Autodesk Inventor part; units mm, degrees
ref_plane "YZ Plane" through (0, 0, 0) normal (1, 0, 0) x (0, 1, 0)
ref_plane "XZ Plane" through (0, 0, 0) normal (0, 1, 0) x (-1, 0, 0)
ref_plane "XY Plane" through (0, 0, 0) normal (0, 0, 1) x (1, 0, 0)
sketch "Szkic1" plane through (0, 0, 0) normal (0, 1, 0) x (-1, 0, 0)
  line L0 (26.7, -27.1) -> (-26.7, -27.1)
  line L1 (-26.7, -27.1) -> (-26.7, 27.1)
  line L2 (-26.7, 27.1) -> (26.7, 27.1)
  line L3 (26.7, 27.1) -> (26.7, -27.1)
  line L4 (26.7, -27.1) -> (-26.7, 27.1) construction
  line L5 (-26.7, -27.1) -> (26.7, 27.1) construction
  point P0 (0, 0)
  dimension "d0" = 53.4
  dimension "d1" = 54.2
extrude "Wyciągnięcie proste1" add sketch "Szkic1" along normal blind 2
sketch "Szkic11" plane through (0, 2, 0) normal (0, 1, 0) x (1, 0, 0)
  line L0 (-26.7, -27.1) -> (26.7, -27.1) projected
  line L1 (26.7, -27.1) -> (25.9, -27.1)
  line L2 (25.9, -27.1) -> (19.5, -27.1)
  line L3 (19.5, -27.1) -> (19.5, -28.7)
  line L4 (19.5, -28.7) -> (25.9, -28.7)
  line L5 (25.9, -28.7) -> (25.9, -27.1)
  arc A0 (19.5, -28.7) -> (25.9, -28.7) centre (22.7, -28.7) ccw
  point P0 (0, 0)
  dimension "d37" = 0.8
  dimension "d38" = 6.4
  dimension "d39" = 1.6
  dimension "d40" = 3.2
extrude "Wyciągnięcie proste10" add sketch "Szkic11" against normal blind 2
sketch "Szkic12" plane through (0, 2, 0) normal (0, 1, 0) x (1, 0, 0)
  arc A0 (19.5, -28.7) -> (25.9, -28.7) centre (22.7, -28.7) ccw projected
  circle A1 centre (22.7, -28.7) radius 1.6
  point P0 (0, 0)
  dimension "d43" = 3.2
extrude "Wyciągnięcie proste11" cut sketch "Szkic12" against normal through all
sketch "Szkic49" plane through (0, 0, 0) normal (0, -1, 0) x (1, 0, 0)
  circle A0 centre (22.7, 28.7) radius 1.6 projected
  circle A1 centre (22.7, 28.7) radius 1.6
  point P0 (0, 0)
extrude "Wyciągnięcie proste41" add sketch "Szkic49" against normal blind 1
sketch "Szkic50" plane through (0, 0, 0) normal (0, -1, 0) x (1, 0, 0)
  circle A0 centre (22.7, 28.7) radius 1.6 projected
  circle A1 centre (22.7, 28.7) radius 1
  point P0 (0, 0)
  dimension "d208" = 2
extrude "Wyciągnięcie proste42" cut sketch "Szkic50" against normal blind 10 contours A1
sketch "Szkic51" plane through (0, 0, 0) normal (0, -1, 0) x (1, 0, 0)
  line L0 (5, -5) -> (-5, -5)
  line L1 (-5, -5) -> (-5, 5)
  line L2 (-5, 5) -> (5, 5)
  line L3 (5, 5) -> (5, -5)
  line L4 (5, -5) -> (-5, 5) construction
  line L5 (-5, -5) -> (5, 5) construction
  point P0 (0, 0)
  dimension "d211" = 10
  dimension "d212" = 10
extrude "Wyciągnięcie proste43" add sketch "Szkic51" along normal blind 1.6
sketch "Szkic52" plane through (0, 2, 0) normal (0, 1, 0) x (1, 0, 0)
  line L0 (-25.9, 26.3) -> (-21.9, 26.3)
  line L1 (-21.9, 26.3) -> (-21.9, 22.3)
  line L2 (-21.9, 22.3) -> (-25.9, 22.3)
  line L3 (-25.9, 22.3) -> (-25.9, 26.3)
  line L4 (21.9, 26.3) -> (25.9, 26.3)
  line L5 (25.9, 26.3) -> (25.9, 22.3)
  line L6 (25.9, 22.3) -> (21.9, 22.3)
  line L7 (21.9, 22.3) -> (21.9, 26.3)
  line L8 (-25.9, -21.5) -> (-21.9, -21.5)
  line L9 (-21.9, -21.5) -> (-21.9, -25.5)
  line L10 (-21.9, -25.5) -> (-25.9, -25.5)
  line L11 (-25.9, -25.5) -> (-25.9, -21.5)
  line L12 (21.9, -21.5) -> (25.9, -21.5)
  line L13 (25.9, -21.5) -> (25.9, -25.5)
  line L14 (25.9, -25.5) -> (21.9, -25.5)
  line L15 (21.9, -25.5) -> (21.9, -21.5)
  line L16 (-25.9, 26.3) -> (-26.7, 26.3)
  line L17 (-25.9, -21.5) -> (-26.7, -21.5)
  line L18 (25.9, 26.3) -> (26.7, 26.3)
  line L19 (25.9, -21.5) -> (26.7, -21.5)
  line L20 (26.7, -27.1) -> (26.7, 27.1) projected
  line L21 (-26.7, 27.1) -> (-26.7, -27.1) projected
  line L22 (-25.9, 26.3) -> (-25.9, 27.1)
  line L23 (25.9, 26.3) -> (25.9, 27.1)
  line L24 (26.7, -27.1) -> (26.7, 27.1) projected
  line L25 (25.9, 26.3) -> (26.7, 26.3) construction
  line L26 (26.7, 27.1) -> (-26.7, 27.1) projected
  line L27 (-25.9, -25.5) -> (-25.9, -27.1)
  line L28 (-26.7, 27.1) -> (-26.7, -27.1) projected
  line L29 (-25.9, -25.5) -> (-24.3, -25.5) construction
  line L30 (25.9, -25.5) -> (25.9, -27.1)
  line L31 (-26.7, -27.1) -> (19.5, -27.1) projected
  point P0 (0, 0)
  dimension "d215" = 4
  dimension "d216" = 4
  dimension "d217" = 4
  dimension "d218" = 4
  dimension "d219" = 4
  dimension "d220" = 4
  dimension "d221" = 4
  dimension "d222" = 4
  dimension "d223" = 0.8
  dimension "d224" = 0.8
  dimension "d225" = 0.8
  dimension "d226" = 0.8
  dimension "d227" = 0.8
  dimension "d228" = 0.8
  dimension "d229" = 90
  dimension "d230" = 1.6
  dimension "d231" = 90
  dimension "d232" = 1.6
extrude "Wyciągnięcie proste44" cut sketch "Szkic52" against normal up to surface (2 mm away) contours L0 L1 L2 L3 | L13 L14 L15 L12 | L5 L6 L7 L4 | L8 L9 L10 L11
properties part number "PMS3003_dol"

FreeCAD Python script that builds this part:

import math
import FreeCAD as App
import Part
import Sketcher

doc = App.newDocument("Part")
body = doc.addObject("PartDesign::Body", "Body")

# Sketch on XZ plane
sketch1 = doc.addObject("Sketcher::SketchObject", "Sketch")
body.addObject(sketch1)
sketch1.AttachmentSupport = (doc.XZ_Plane, [""])
sketch1.MapMode = "FlatFace"
sketch1.addGeometry([
    Part.LineSegment(App.Vector(26.7, -27.1, 0), App.Vector(-26.7, -27.1, 0)),
    Part.LineSegment(App.Vector(-26.7, -27.1, 0), App.Vector(-26.7, 27.1, 0)),
    Part.LineSegment(App.Vector(-26.7, 27.1, 0), App.Vector(26.7, 27.1, 0)),
    Part.LineSegment(App.Vector(26.7, 27.1, 0), App.Vector(26.7, -27.1, 0)),
], False)
sketch1.addConstraint([
    Sketcher.Constraint("Coincident", 0, 2, 1, 1),
    Sketcher.Constraint("Coincident", 1, 2, 2, 1),
    Sketcher.Constraint("Coincident", 2, 2, 3, 1),
    Sketcher.Constraint("Coincident", 3, 2, 0, 1),
    Sketcher.Constraint("Horizontal", 0),
    Sketcher.Constraint("Vertical", 1),
    Sketcher.Constraint("Horizontal", 2),
    Sketcher.Constraint("Vertical", 3),
    Sketcher.Constraint("Symmetric", 0, 2, 2, 2, -1, 1),
    Sketcher.Constraint("DistanceX", 0, 2, 0, 1, 53.4),
    Sketcher.Constraint("DistanceY", 1, 1, 1, 2, 54.2),
])
pad1 = doc.addObject("PartDesign::Pad", "Pad")
body.addObject(pad1)
pad1.Profile = sketch1
pad1.Length = 2
pad1.Reversed = True

# Sketch on XZ plane
sketch2 = doc.addObject("Sketcher::SketchObject", "Sketch001")
body.addObject(sketch2)
sketch2.AttachmentSupport = (doc.XZ_Plane, [""])
sketch2.MapMode = "FlatFace"
sketch2.AttachmentOffset = App.Placement(App.Vector(0, 0, -2), App.Rotation())
sketch2.addGeometry([
    Part.LineSegment(App.Vector(25.9, 27.1, 0), App.Vector(19.5, 27.1, 0)),
    Part.LineSegment(App.Vector(19.5, 27.1, 0), App.Vector(19.5, 28.7, 0)),
    Part.ArcOfCircle(Part.Circle(App.Vector(22.7, 28.7, 0), App.Vector(0, 0, 1), 3.2), math.radians(0), math.radians(180)),
    Part.LineSegment(App.Vector(25.9, 28.7, 0), App.Vector(25.9, 27.1, 0)),
], False)
sketch2.addConstraint([
    Sketcher.Constraint("Coincident", 0, 2, 1, 1),
    Sketcher.Constraint("Tangent", 1, 2, 2, 2),
    Sketcher.Constraint("Tangent", 2, 1, 3, 1),
    Sketcher.Constraint("Coincident", 3, 2, 0, 1),
    Sketcher.Constraint("Horizontal", 0),
    Sketcher.Constraint("Vertical", 1),
    Sketcher.Constraint("Vertical", 3),
    Sketcher.Constraint("Radius", 2, 3.2),
    Sketcher.Constraint("DistanceY", 1, 1, 1, 2, 1.6),
    Sketcher.Constraint("DistanceX", -1, 1, 2, 3, 22.7),
    Sketcher.Constraint("DistanceY", -1, 1, 2, 3, 28.7),
])
pad2 = doc.addObject("PartDesign::Pad", "Pad001")
body.addObject(pad2)
pad2.Profile = sketch2
pad2.Length = 2

# Sketch on XZ plane
sketch3 = doc.addObject("Sketcher::SketchObject", "Sketch002")
body.addObject(sketch3)
sketch3.AttachmentSupport = (doc.XZ_Plane, [""])
sketch3.MapMode = "FlatFace"
sketch3.AttachmentOffset = App.Placement(App.Vector(0, 0, -2), App.Rotation())
sketch3.addGeometry(Part.Circle(App.Vector(22.7, 28.7, 0), App.Vector(0, 0, 1), 1.6), False)
sketch3.addConstraint([
    Sketcher.Constraint("Diameter", 0, 3.2),
    Sketcher.Constraint("DistanceX", -1, 1, 0, 3, 22.7),
    Sketcher.Constraint("DistanceY", -1, 1, 0, 3, 28.7),
])
pocket1 = doc.addObject("PartDesign::Pocket", "Pocket")
body.addObject(pocket1)
pocket1.Profile = sketch3
pocket1.Type = "ThroughAll"
pocket1.Reversed = True

# Sketch on XZ plane
sketch4 = doc.addObject("Sketcher::SketchObject", "Sketch003")
body.addObject(sketch4)
sketch4.AttachmentSupport = (doc.XZ_Plane, [""])
sketch4.MapMode = "FlatFace"
sketch4.addGeometry(Part.Circle(App.Vector(22.7, 28.7, 0), App.Vector(0, 0, 1), 1.6), False)
sketch4.addConstraint([
    Sketcher.Constraint("Diameter", 0, 3.2),
    Sketcher.Constraint("DistanceX", -1, 1, 0, 3, 22.7),
    Sketcher.Constraint("DistanceY", -1, 1, 0, 3, 28.7),
])
pad3 = doc.addObject("PartDesign::Pad", "Pad002")
body.addObject(pad3)
pad3.Profile = sketch4
pad3.Length = 1
pad3.Reversed = True

# Sketch on XZ plane
sketch5 = doc.addObject("Sketcher::SketchObject", "Sketch004")
body.addObject(sketch5)
sketch5.AttachmentSupport = (doc.XZ_Plane, [""])
sketch5.MapMode = "FlatFace"
sketch5.addGeometry(Part.Circle(App.Vector(22.7, 28.7, 0), App.Vector(0, 0, 1), 1), False)
sketch5.addConstraint([
    Sketcher.Constraint("Diameter", 0, 2.0),
    Sketcher.Constraint("DistanceX", -1, 1, 0, 3, 22.7),
    Sketcher.Constraint("DistanceY", -1, 1, 0, 3, 28.7),
])
pocket2 = doc.addObject("PartDesign::Pocket", "Pocket001")
body.addObject(pocket2)
pocket2.Profile = sketch5
pocket2.Length = 10

# Sketch on XZ plane
sketch6 = doc.addObject("Sketcher::SketchObject", "Sketch005")
body.addObject(sketch6)
sketch6.AttachmentSupport = (doc.XZ_Plane, [""])
sketch6.MapMode = "FlatFace"
sketch6.addGeometry([
    Part.LineSegment(App.Vector(-5, -5, 0), App.Vector(5, -5, 0)),
    Part.LineSegment(App.Vector(5, -5, 0), App.Vector(5, 5, 0)),
    Part.LineSegment(App.Vector(5, 5, 0), App.Vector(-5, 5, 0)),
    Part.LineSegment(App.Vector(-5, 5, 0), App.Vector(-5, -5, 0)),
], False)
sketch6.addConstraint([
    Sketcher.Constraint("Coincident", 0, 2, 1, 1),
    Sketcher.Constraint("Coincident", 1, 2, 2, 1),
    Sketcher.Constraint("Coincident", 2, 2, 3, 1),
    Sketcher.Constraint("Coincident", 3, 2, 0, 1),
    Sketcher.Constraint("Horizontal", 0),
    Sketcher.Constraint("Vertical", 1),
    Sketcher.Constraint("Horizontal", 2),
    Sketcher.Constraint("Vertical", 3),
    Sketcher.Constraint("Symmetric", 0, 2, 2, 2, -1, 1),
    Sketcher.Constraint("Equal", 2, 1),
    Sketcher.Constraint("DistanceX", 0, 1, 0, 2, 10.0),
])
pad4 = doc.addObject("PartDesign::Pad", "Pad003")
body.addObject(pad4)
pad4.Profile = sketch6
pad4.Length = 1.6

# Sketch on XZ plane
sketch7 = doc.addObject("Sketcher::SketchObject", "Sketch006")
body.addObject(sketch7)
sketch7.AttachmentSupport = (doc.XZ_Plane, [""])
sketch7.MapMode = "FlatFace"
sketch7.AttachmentOffset = App.Placement(App.Vector(0, 0, -2), App.Rotation())
sketch7.addGeometry([
    Part.LineSegment(App.Vector(-21.9, -26.3, 0), App.Vector(-25.9, -26.3, 0)),  # 0
    Part.LineSegment(App.Vector(-25.9, -26.3, 0), App.Vector(-25.9, -22.3, 0)),  # 1
    Part.LineSegment(App.Vector(-25.9, -22.3, 0), App.Vector(-21.9, -22.3, 0)),  # 2
    Part.LineSegment(App.Vector(-21.9, -22.3, 0), App.Vector(-21.9, -26.3, 0)),  # 3
    Part.LineSegment(App.Vector(25.9, 25.5, 0), App.Vector(25.9, 21.5, 0)),  # 4
    Part.LineSegment(App.Vector(25.9, 21.5, 0), App.Vector(21.9, 21.5, 0)),  # 5
    Part.LineSegment(App.Vector(21.9, 21.5, 0), App.Vector(21.9, 25.5, 0)),  # 6
    Part.LineSegment(App.Vector(21.9, 25.5, 0), App.Vector(25.9, 25.5, 0)),  # 7
    Part.LineSegment(App.Vector(25.9, -22.3, 0), App.Vector(25.9, -26.3, 0)),  # 8
    Part.LineSegment(App.Vector(25.9, -26.3, 0), App.Vector(21.9, -26.3, 0)),  # 9
    Part.LineSegment(App.Vector(21.9, -26.3, 0), App.Vector(21.9, -22.3, 0)),  # 10
    Part.LineSegment(App.Vector(21.9, -22.3, 0), App.Vector(25.9, -22.3, 0)),  # 11
    Part.LineSegment(App.Vector(-21.9, 21.5, 0), App.Vector(-25.9, 21.5, 0)),  # 12
    Part.LineSegment(App.Vector(-25.9, 21.5, 0), App.Vector(-25.9, 25.5, 0)),  # 13
    Part.LineSegment(App.Vector(-25.9, 25.5, 0), App.Vector(-21.9, 25.5, 0)),  # 14
    Part.LineSegment(App.Vector(-21.9, 25.5, 0), App.Vector(-21.9, 21.5, 0)),  # 15
], False)
sketch7.addConstraint([
    Sketcher.Constraint("Coincident", 0, 2, 1, 1),
    Sketcher.Constraint("Coincident", 1, 2, 2, 1),
    Sketcher.Constraint("Coincident", 2, 2, 3, 1),
    Sketcher.Constraint("Coincident", 3, 2, 0, 1),
    Sketcher.Constraint("Coincident", 4, 2, 5, 1),
    Sketcher.Constraint("Coincident", 5, 2, 6, 1),
    Sketcher.Constraint("Coincident", 6, 2, 7, 1),
    Sketcher.Constraint("Coincident", 7, 2, 4, 1),
    Sketcher.Constraint("Coincident", 8, 2, 9, 1),
    Sketcher.Constraint("Coincident", 9, 2, 10, 1),
    Sketcher.Constraint("Coincident", 10, 2, 11, 1),
    Sketcher.Constraint("Coincident", 11, 2, 8, 1),
    Sketcher.Constraint("Coincident", 12, 2, 13, 1),
    Sketcher.Constraint("Coincident", 13, 2, 14, 1),
    Sketcher.Constraint("Coincident", 14, 2, 15, 1),
    Sketcher.Constraint("Coincident", 15, 2, 12, 1),
    Sketcher.Constraint("Horizontal", 0),
    Sketcher.Constraint("Vertical", 1),
    Sketcher.Constraint("Horizontal", 2),
    Sketcher.Constraint("Vertical", 3),
    Sketcher.Constraint("Vertical", 4),
    Sketcher.Constraint("Horizontal", 5),
    Sketcher.Constraint("Vertical", 6),
    Sketcher.Constraint("Horizontal", 7),
    Sketcher.Constraint("Vertical", 8),
    Sketcher.Constraint("Horizontal", 9),
    Sketcher.Constraint("Vertical", 10),
    Sketcher.Constraint("Horizontal", 11),
    Sketcher.Constraint("Horizontal", 12),
    Sketcher.Constraint("Vertical", 13),
    Sketcher.Constraint("Horizontal", 14),
    Sketcher.Constraint("Vertical", 15),
    Sketcher.Constraint("Symmetric", 0, 2, 8, 2, -2),
    Sketcher.Constraint("Symmetric", 2, 2, 10, 2, -2),
    Sketcher.Constraint("Symmetric", 4, 2, 12, 2, -2),
    Sketcher.Constraint("Symmetric", 6, 2, 14, 2, -2),
    Sketcher.Constraint("Vertical", 7, 2, 8, 2),
    Sketcher.Constraint("Vertical", 6, 2, 9, 2),
    Sketcher.Constraint("Equal", 14, 1),
    Sketcher.Constraint("Equal", 3, 4),
    Sketcher.Constraint("DistanceX", 0, 2, 0, 1, 4.0),
    Sketcher.Constraint("DistanceX", 0, 2, -1, 1, 25.9),
    Sketcher.Constraint("DistanceY", 0, 2, -1, 1, 26.3),
    Sketcher.Constraint("DistanceY", -1, 1, 4, 2, 21.5),
])
pocket3 = doc.addObject("PartDesign::Pocket", "Pocket002")
body.addObject(pocket3)
pocket3.Profile = sketch7
pocket3.Length = 2
pocket3.Reversed = True

doc.recompute()
